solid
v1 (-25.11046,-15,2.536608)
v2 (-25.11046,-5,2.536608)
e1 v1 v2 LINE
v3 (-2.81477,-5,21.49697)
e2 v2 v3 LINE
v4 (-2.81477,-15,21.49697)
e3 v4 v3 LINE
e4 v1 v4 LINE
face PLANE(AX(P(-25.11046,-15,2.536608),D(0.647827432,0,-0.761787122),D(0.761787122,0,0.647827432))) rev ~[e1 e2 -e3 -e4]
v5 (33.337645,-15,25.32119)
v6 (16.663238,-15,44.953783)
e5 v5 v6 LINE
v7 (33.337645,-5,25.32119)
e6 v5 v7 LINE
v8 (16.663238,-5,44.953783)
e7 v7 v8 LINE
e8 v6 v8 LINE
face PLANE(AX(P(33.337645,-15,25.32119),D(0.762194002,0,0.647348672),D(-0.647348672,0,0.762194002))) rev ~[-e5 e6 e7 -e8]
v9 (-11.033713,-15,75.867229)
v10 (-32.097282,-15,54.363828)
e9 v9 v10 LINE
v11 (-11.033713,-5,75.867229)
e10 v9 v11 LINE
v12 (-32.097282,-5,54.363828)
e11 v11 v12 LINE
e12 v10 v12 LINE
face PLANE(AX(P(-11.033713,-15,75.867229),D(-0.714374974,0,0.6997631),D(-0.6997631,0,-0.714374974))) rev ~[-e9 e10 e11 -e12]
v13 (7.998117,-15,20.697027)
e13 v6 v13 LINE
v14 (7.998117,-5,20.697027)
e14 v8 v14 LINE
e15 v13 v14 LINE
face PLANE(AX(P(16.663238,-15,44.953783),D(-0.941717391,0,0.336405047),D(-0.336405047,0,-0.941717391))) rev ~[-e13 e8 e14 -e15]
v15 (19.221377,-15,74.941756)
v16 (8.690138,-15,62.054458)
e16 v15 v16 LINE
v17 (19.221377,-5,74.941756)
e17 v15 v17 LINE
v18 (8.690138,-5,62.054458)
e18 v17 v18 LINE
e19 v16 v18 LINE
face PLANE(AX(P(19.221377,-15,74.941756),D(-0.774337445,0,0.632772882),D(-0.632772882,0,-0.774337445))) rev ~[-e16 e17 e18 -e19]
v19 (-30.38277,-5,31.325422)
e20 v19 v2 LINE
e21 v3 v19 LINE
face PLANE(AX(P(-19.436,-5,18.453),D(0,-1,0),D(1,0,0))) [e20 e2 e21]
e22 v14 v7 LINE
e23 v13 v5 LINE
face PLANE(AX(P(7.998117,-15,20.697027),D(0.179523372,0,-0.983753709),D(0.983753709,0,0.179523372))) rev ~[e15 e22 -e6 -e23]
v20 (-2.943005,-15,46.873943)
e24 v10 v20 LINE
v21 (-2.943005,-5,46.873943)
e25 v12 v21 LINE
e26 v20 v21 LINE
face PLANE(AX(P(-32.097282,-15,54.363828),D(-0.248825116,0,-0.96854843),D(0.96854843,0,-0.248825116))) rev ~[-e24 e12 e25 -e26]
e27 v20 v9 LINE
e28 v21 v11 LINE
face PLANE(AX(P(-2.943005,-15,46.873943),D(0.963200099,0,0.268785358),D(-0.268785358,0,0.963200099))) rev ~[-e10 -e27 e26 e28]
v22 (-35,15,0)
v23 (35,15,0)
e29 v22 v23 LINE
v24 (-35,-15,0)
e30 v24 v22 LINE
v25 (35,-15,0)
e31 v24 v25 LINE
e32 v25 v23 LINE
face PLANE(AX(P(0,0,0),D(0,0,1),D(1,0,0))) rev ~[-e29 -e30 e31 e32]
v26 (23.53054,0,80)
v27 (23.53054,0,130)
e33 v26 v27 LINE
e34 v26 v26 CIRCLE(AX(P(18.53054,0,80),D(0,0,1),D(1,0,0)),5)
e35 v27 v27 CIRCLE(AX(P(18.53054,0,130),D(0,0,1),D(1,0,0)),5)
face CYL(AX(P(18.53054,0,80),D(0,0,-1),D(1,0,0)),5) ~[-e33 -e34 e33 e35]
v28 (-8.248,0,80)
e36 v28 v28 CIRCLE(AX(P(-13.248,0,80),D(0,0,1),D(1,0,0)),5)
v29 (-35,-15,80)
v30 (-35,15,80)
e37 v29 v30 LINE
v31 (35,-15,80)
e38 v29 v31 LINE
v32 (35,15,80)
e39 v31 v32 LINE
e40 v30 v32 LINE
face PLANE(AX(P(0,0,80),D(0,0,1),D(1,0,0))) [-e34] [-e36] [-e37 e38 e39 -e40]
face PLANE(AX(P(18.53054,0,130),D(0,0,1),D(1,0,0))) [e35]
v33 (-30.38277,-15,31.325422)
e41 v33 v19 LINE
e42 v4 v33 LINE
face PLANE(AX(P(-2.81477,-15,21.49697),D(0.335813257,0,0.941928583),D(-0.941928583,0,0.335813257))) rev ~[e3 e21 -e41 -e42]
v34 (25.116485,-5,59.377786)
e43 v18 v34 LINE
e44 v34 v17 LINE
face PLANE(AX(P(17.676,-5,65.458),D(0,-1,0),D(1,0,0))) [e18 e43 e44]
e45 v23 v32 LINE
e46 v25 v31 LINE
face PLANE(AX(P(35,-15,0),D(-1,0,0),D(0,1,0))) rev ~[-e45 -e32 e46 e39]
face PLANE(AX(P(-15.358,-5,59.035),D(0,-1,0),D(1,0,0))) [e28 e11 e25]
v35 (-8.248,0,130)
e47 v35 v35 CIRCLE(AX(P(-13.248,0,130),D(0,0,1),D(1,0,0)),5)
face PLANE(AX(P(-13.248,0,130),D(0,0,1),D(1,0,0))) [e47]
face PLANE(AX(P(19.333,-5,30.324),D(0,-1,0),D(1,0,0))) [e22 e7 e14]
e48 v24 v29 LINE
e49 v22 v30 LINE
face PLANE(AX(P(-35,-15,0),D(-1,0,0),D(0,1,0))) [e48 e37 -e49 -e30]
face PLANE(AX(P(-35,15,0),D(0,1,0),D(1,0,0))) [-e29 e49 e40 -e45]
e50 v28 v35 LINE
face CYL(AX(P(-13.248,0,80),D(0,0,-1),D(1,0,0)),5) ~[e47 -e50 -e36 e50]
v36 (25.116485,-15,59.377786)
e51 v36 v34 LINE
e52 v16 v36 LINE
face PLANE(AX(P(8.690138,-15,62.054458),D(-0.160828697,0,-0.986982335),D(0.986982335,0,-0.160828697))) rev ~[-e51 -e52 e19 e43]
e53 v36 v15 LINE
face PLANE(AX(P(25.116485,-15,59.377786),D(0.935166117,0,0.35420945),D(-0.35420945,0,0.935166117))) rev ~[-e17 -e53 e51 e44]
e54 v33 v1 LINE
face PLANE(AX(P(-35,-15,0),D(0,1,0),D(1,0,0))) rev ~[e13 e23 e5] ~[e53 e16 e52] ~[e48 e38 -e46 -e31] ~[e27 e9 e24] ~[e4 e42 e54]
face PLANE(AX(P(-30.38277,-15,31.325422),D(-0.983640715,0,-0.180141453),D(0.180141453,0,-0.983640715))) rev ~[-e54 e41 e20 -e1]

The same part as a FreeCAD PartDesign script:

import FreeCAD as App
import Part
import Sketcher
from FreeCAD import Vector

doc = App.newDocument("Part")
body = doc.addObject("PartDesign::Body", "Body")

# Sketch on XY plane
sketch1 = body.newObject("Sketcher::SketchObject", "Sketch")
sketch1.AttachmentSupport = (doc.getObject("XY_Plane"), [""])
sketch1.MapMode = "FlatFace"
sketch1.addGeometry([
    Part.LineSegment(Vector(-35, 15, 0), Vector(-35, -15, 0)),
    Part.LineSegment(Vector(-35, -15, 0), Vector(35, -15, 0)),
    Part.LineSegment(Vector(35, -15, 0), Vector(35, 15, 0)),
    Part.LineSegment(Vector(35, 15, 0), Vector(-35, 15, 0)),
], False)
sketch1.addConstraint([
    Sketcher.Constraint("Coincident", 0, 2, 1, 1),
    Sketcher.Constraint("Coincident", 1, 2, 2, 1),
    Sketcher.Constraint("Coincident", 2, 2, 3, 1),
    Sketcher.Constraint("Coincident", 3, 2, 0, 1),
    Sketcher.Constraint("Vertical", 0),
    Sketcher.Constraint("Horizontal", 1),
    Sketcher.Constraint("Vertical", 2),
    Sketcher.Constraint("Horizontal", 3),
    Sketcher.Constraint("Symmetric", 0, 2, 2, 2, -1, 1),
    Sketcher.Constraint("DistanceX", 1, 1, 1, 2, 70.0),
    Sketcher.Constraint("DistanceY", 0, 2, 0, 1, 30.0),
])
pad1 = body.newObject("PartDesign::Pad", "Pad")
pad1.Profile = sketch1
pad1.Length = 80

# Sketch on XY plane
sketch2 = body.newObject("Sketcher::SketchObject", "Sketch001")
sketch2.AttachmentSupport = (doc.getObject("XY_Plane"), [""])
sketch2.MapMode = "FlatFace"
sketch2.AttachmentOffset = App.Placement(Vector(0, 0, 80), App.Rotation())
sketch2.addGeometry([
    Part.Circle(Vector(-13.248, 0, 0), Vector(0, 0, 1), 5),
    Part.Circle(Vector(18.53054, 0, 0), Vector(0, 0, 1), 5),
], False)
sketch2.addConstraint([
    Sketcher.Constraint("Equal", 0, 1),
    Sketcher.Constraint("PointOnObject", 0, 3, -1),
    Sketcher.Constraint("PointOnObject", 1, 3, -1),
    Sketcher.Constraint("Diameter", 0, 10.0),
    Sketcher.Constraint("DistanceX", 0, 3, -1, 1, 13.248),
    Sketcher.Constraint("DistanceX", -1, 1, 1, 3, 18.53054),
])
pad2 = body.newObject("PartDesign::Pad", "Pad001")
pad2.Profile = sketch2
pad2.Length = 50

# Sketch on XZ plane
sketch3 = body.newObject("Sketcher::SketchObject", "Sketch002")
sketch3.AttachmentSupport = (doc.getObject("XZ_Plane"), [""])
sketch3.MapMode = "FlatFace"
sketch3.AttachmentOffset = App.Placement(Vector(0, 0, 15), App.Rotation())
sketch3.addGeometry([
    Part.LineSegment(Vector(8.690138, 62.054458, 0), Vector(25.116485, 59.377786, 0)),  # 0
    Part.LineSegment(Vector(25.116485, 59.377786, 0), Vector(19.221377, 74.941756, 0)),  # 1
    Part.LineSegment(Vector(19.221377, 74.941756, 0), Vector(8.690138, 62.054458, 0)),  # 2
    Part.LineSegment(Vector(-2.943005, 46.873943, 0), Vector(-11.033713, 75.867229, 0)),  # 3
    Part.LineSegment(Vector(-11.033713, 75.867229, 0), Vector(-32.097282, 54.363828, 0)),  # 4
    Part.LineSegment(Vector(-32.097282, 54.363828, 0), Vector(-2.943005, 46.873943, 0)),  # 5
    Part.LineSegment(Vector(-25.11046, 2.536608, 0), Vector(-2.81477, 21.49697, 0)),  # 6
    Part.LineSegment(Vector(-2.81477, 21.49697, 0), Vector(-30.38277, 31.325422, 0)),  # 7
    Part.LineSegment(Vector(-30.38277, 31.325422, 0), Vector(-25.11046, 2.536608, 0)),  # 8
    Part.LineSegment(Vector(33.337645, 25.32119, 0), Vector(16.663238, 44.953783, 0)),  # 9
    Part.LineSegment(Vector(16.663238, 44.953783, 0), Vector(7.998117, 20.697027, 0)),  # 10
    Part.LineSegment(Vector(7.998117, 20.697027, 0), Vector(33.337645, 25.32119, 0)),  # 11
], False)
sketch3.addConstraint([
    Sketcher.Constraint("Coincident", 0, 2, 1, 1),
    Sketcher.Constraint("Coincident", 1, 2, 2, 1),
    Sketcher.Constraint("Coincident", 2, 2, 0, 1),
    Sketcher.Constraint("Coincident", 3, 2, 4, 1),
    Sketcher.Constraint("Coincident", 4, 2, 5, 1),
    Sketcher.Constraint("Coincident", 5, 2, 3, 1),
    Sketcher.Constraint("Coincident", 6, 2, 7, 1),
    Sketcher.Constraint("Coincident", 7, 2, 8, 1),
    Sketcher.Constraint("Coincident", 8, 2, 6, 1),
    Sketcher.Constraint("Coincident", 9, 2, 10, 1),
    Sketcher.Constraint("Coincident", 10, 2, 11, 1),
    Sketcher.Constraint("Coincident", 11, 2, 9, 1),
    Sketcher.Constraint("Equal", 0, 1),
    Sketcher.Constraint("Equal", 1, 2),
    Sketcher.Constraint("Equal", 3, 4),
    Sketcher.Constraint("Equal", 4, 5),
    Sketcher.Constraint("Equal", 6, 7),
    Sketcher.Constraint("Equal", 7, 8),
    Sketcher.Constraint("Equal", 9, 10),
    Sketcher.Constraint("Equal", 10, 11),
    Sketcher.Constraint("Distance", 0, 16.643),
    Sketcher.Constraint("Distance", 3, 30.101),
    Sketcher.Constraint("Distance", 9, 25.758),
    Sketcher.Constraint("DistanceX", 7, 2, 6, 2, 27.568),
    Sketcher.Constraint("DistanceY", 2, 2, 1, 2, 12.887298),
    Sketcher.Constraint("DistanceX", 3, 2, 0, 2, 36.150198),
    Sketcher.Constraint("DistanceY", 4, 2, 3, 2, 21.503401),
    Sketcher.Constraint("DistanceX", 2, 2, 9, 2, 7.9731),
    Sketcher.Constraint("Distance", 7, 29.267612),
    Sketcher.Constraint("DistanceY", -1, 1, 3, 2, 75.867229),
    Sketcher.Constraint("DistanceX", 6, 2, -1, 1, 2.81477),
    Sketcher.Constraint("DistanceY", -1, 1, 6, 2, 21.49697),
    Sketcher.Constraint("DistanceX", -1, 1, 9, 2, 16.663238),
    Sketcher.Constraint("DistanceY", -1, 1, 11, 2, 25.32119),
    Sketcher.Constraint("DistanceY", 2, 2, 3, 2, 13.812771),
    Sketcher.Constraint("DistanceY", 9, 2, 5, 2, 1.92016),
])
pocket1 = body.newObject("PartDesign::Pocket", "Pocket")
pocket1.Profile = sketch3
pocket1.Length = 10

doc.recompute()
